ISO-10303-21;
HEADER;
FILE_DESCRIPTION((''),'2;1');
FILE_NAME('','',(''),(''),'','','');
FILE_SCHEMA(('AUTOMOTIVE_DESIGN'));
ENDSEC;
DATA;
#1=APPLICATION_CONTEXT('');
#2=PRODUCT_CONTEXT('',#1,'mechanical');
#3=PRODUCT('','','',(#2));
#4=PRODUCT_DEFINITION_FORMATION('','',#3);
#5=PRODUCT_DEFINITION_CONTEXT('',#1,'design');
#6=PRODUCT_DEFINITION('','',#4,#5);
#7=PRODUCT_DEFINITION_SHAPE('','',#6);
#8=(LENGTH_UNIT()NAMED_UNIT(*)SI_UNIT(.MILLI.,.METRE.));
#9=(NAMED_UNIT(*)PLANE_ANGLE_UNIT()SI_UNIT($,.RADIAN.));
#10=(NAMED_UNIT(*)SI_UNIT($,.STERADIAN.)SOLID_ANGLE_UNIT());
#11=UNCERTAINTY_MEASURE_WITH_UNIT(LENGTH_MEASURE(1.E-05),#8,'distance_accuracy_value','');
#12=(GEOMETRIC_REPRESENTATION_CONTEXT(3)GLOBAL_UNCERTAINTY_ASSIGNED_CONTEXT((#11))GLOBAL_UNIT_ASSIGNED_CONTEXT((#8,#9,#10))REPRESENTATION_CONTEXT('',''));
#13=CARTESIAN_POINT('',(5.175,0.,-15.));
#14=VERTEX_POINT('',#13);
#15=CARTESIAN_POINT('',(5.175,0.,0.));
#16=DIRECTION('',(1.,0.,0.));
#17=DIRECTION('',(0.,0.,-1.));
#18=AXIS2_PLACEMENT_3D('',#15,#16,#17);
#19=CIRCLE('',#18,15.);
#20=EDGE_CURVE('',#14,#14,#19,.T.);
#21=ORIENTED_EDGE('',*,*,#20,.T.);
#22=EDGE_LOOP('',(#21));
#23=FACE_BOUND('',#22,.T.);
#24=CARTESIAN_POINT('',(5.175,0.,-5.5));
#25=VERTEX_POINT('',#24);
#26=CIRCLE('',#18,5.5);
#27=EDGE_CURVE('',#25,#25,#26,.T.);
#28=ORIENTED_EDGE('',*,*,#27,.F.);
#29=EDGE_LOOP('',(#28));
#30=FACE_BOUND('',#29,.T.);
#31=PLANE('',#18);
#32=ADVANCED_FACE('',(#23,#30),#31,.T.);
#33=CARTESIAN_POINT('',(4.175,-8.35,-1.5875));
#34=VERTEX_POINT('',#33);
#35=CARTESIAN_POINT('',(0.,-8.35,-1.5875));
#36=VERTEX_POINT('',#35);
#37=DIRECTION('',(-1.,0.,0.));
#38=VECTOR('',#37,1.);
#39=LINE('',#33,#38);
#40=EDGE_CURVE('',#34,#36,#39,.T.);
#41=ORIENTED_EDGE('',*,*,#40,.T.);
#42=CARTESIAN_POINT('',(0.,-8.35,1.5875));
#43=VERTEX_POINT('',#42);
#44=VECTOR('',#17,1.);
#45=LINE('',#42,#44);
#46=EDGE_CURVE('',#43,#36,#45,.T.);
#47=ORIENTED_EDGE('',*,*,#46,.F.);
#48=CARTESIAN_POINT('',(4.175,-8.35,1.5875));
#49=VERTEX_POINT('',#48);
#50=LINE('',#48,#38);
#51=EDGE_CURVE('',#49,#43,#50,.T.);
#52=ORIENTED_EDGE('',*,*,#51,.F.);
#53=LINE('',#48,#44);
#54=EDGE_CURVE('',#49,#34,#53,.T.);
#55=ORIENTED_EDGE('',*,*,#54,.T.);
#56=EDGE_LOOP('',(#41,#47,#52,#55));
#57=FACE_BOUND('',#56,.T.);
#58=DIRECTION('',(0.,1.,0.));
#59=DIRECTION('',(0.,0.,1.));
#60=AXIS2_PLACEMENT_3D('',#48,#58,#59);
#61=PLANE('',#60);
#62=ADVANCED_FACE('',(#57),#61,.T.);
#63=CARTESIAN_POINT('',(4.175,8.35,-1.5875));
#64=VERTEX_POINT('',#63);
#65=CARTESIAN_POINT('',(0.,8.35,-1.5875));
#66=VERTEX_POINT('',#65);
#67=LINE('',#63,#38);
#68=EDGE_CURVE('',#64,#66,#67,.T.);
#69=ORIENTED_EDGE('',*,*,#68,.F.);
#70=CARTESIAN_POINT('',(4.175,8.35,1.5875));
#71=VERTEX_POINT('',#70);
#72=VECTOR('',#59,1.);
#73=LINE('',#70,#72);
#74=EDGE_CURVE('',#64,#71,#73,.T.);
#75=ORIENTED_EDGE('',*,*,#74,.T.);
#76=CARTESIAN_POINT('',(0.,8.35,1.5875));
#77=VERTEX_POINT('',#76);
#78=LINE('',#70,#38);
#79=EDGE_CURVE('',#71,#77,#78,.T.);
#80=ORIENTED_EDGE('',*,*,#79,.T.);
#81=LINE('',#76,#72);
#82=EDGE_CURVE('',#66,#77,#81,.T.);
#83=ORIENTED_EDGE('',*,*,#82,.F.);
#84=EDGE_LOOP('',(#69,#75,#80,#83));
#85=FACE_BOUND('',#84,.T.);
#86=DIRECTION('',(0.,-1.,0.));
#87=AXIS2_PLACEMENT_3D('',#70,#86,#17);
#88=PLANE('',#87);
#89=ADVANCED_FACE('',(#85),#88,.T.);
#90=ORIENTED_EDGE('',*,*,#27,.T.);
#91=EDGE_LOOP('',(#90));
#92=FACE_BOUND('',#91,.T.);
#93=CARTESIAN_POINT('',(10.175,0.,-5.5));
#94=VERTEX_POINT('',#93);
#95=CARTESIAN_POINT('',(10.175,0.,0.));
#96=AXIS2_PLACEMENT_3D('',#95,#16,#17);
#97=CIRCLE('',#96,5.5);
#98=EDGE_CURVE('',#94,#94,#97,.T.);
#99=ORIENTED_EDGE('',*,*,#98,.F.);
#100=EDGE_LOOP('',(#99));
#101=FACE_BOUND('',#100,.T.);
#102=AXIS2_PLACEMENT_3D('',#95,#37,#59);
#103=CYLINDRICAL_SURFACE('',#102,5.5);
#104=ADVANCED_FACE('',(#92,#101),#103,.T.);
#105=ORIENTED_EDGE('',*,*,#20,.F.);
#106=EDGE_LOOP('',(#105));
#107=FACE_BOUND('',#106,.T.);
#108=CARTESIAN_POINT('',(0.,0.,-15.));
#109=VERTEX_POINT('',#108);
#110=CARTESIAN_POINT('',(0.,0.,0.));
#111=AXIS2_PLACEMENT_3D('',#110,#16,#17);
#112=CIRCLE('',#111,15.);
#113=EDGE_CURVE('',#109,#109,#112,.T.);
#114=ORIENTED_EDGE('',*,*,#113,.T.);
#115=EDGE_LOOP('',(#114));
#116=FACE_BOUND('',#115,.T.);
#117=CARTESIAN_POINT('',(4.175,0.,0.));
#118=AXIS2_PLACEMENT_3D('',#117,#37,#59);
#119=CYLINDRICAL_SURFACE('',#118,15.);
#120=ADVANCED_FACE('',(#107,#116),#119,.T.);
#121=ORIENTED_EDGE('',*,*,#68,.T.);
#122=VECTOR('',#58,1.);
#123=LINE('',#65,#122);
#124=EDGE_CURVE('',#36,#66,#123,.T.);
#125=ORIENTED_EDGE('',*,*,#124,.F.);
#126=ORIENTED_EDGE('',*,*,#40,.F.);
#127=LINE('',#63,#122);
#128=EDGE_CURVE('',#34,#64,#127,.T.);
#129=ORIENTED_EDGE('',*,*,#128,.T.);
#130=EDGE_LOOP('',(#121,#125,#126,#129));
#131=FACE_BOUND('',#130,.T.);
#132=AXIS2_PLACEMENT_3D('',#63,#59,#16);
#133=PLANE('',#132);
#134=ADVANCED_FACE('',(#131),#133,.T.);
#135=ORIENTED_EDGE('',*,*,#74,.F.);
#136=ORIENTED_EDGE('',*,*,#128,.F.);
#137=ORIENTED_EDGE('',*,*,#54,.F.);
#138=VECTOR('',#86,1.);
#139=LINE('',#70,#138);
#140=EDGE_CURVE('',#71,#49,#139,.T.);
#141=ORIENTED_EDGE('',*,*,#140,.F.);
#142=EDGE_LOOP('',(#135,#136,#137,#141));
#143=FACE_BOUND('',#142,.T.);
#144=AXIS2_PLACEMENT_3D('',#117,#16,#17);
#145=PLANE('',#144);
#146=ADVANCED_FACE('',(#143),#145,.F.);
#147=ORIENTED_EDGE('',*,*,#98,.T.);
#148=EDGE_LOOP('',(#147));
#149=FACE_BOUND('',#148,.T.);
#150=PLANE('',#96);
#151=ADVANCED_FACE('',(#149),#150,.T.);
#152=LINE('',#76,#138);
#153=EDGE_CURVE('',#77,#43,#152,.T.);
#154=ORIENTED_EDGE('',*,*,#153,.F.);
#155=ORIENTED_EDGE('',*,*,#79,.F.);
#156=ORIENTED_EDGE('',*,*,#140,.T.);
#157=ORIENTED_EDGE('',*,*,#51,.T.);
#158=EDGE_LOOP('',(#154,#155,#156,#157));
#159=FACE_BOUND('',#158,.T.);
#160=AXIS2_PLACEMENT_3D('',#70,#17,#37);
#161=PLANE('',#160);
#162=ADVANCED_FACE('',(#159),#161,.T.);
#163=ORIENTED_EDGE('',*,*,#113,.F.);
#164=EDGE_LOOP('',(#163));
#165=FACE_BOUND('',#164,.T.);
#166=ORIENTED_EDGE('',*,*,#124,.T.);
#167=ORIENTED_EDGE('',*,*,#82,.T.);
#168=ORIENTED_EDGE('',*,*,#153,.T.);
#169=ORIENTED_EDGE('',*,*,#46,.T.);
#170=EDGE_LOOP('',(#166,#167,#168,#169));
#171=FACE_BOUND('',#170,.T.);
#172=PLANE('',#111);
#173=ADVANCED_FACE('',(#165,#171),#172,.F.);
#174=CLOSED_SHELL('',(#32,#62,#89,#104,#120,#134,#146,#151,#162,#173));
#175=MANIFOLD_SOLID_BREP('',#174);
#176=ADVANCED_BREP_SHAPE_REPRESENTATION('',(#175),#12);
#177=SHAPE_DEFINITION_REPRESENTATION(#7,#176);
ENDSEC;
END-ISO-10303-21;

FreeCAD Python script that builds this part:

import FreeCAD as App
import Part
import Sketcher


def add_polygon(sketch, points):
    """Adds a closed chain of lines whose ends are joined by coincident constraints."""
    first, n = sketch.GeometryCount, len(points)
    for a, b in zip(points, points[1:] + points[:1]):
        sketch.addGeometry(Part.LineSegment(App.Vector(*a, 0), App.Vector(*b, 0)), False)
    for i in range(n):
        sketch.addConstraint(Sketcher.Constraint("Coincident", first + i, 2, first + (i + 1) % n, 1))

doc = App.newDocument("Part")
body = doc.addObject("PartDesign::Body", "Body")

# Sketch on YZ plane
sketch1 = body.newObject("Sketcher::SketchObject", "Sketch")
sketch1.AttachmentSupport = (doc.getObject("YZ_Plane"), [""])
sketch1.MapMode = "FlatFace"
sketch1.addGeometry(Part.Circle(App.Vector(0, 0, 0), App.Vector(0, 0, 1), 15), False)  # 0
add_polygon(sketch1, [(-8.3, -1.6), (-8.3, 1.6), (8.3, 1.6), (8.3, -1.6)])  # lines 1-4
sketch1.addConstraint([
    Sketcher.Constraint("Vertical", 1),
    Sketcher.Constraint("Horizontal", 2),
    Sketcher.Constraint("Vertical", 3),
    Sketcher.Constraint("Horizontal", 4),
    Sketcher.Constraint("Coincident", 0, 3, -1, 1),
    Sketcher.Constraint("Symmetric", 1, 2, 3, 2, -1, 1),
    Sketcher.Constraint("Diameter", 0, 30.0),
    Sketcher.Constraint("DistanceX", 2, 1, 2, 2, 16.7),
    Sketcher.Constraint("DistanceY", 1, 1, 1, 2, 3.175),
])
pad1 = body.newObject("PartDesign::Pad", "Pad")
pad1.Profile = sketch1
pad1.Length = 4.175

# Sketch on YZ plane
sketch2 = body.newObject("Sketcher::SketchObject", "Sketch001")
sketch2.AttachmentSupport = (doc.getObject("YZ_Plane"), [""])
sketch2.MapMode = "FlatFace"
sketch2.AttachmentOffset = App.Placement(App.Vector(0, 0, 4.175), App.Rotation())
sketch2.addGeometry(Part.Circle(App.Vector(0, 0, 0), App.Vector(0, 0, 1), 15), False)
sketch2.addConstraint([
    Sketcher.Constraint("Coincident", 0, 3, -1, 1),
    Sketcher.Constraint("Diameter", 0, 30.0),
])
pad2 = body.newObject("PartDesign::Pad", "Pad001")
pad2.Profile = sketch2
pad2.Length = 1

# Sketch on YZ plane
sketch3 = body.newObject("Sketcher::SketchObject", "Sketch002")
sketch3.AttachmentSupport = (doc.getObject("YZ_Plane"), [""])
sketch3.MapMode = "FlatFace"
sketch3.AttachmentOffset = App.Placement(App.Vector(0, 0, 5.175), App.Rotation())
sketch3.addGeometry(Part.Circle(App.Vector(0, 0, 0), App.Vector(0, 0, 1), 6), False)
sketch3.addConstraint([
    Sketcher.Constraint("Coincident", 0, 3, -1, 1),
    Sketcher.Constraint("Diameter", 0, 11.0),
])
pad3 = body.newObject("PartDesign::Pad", "Pad002")
pad3.Profile = sketch3
pad3.Length = 5

doc.recompute()
